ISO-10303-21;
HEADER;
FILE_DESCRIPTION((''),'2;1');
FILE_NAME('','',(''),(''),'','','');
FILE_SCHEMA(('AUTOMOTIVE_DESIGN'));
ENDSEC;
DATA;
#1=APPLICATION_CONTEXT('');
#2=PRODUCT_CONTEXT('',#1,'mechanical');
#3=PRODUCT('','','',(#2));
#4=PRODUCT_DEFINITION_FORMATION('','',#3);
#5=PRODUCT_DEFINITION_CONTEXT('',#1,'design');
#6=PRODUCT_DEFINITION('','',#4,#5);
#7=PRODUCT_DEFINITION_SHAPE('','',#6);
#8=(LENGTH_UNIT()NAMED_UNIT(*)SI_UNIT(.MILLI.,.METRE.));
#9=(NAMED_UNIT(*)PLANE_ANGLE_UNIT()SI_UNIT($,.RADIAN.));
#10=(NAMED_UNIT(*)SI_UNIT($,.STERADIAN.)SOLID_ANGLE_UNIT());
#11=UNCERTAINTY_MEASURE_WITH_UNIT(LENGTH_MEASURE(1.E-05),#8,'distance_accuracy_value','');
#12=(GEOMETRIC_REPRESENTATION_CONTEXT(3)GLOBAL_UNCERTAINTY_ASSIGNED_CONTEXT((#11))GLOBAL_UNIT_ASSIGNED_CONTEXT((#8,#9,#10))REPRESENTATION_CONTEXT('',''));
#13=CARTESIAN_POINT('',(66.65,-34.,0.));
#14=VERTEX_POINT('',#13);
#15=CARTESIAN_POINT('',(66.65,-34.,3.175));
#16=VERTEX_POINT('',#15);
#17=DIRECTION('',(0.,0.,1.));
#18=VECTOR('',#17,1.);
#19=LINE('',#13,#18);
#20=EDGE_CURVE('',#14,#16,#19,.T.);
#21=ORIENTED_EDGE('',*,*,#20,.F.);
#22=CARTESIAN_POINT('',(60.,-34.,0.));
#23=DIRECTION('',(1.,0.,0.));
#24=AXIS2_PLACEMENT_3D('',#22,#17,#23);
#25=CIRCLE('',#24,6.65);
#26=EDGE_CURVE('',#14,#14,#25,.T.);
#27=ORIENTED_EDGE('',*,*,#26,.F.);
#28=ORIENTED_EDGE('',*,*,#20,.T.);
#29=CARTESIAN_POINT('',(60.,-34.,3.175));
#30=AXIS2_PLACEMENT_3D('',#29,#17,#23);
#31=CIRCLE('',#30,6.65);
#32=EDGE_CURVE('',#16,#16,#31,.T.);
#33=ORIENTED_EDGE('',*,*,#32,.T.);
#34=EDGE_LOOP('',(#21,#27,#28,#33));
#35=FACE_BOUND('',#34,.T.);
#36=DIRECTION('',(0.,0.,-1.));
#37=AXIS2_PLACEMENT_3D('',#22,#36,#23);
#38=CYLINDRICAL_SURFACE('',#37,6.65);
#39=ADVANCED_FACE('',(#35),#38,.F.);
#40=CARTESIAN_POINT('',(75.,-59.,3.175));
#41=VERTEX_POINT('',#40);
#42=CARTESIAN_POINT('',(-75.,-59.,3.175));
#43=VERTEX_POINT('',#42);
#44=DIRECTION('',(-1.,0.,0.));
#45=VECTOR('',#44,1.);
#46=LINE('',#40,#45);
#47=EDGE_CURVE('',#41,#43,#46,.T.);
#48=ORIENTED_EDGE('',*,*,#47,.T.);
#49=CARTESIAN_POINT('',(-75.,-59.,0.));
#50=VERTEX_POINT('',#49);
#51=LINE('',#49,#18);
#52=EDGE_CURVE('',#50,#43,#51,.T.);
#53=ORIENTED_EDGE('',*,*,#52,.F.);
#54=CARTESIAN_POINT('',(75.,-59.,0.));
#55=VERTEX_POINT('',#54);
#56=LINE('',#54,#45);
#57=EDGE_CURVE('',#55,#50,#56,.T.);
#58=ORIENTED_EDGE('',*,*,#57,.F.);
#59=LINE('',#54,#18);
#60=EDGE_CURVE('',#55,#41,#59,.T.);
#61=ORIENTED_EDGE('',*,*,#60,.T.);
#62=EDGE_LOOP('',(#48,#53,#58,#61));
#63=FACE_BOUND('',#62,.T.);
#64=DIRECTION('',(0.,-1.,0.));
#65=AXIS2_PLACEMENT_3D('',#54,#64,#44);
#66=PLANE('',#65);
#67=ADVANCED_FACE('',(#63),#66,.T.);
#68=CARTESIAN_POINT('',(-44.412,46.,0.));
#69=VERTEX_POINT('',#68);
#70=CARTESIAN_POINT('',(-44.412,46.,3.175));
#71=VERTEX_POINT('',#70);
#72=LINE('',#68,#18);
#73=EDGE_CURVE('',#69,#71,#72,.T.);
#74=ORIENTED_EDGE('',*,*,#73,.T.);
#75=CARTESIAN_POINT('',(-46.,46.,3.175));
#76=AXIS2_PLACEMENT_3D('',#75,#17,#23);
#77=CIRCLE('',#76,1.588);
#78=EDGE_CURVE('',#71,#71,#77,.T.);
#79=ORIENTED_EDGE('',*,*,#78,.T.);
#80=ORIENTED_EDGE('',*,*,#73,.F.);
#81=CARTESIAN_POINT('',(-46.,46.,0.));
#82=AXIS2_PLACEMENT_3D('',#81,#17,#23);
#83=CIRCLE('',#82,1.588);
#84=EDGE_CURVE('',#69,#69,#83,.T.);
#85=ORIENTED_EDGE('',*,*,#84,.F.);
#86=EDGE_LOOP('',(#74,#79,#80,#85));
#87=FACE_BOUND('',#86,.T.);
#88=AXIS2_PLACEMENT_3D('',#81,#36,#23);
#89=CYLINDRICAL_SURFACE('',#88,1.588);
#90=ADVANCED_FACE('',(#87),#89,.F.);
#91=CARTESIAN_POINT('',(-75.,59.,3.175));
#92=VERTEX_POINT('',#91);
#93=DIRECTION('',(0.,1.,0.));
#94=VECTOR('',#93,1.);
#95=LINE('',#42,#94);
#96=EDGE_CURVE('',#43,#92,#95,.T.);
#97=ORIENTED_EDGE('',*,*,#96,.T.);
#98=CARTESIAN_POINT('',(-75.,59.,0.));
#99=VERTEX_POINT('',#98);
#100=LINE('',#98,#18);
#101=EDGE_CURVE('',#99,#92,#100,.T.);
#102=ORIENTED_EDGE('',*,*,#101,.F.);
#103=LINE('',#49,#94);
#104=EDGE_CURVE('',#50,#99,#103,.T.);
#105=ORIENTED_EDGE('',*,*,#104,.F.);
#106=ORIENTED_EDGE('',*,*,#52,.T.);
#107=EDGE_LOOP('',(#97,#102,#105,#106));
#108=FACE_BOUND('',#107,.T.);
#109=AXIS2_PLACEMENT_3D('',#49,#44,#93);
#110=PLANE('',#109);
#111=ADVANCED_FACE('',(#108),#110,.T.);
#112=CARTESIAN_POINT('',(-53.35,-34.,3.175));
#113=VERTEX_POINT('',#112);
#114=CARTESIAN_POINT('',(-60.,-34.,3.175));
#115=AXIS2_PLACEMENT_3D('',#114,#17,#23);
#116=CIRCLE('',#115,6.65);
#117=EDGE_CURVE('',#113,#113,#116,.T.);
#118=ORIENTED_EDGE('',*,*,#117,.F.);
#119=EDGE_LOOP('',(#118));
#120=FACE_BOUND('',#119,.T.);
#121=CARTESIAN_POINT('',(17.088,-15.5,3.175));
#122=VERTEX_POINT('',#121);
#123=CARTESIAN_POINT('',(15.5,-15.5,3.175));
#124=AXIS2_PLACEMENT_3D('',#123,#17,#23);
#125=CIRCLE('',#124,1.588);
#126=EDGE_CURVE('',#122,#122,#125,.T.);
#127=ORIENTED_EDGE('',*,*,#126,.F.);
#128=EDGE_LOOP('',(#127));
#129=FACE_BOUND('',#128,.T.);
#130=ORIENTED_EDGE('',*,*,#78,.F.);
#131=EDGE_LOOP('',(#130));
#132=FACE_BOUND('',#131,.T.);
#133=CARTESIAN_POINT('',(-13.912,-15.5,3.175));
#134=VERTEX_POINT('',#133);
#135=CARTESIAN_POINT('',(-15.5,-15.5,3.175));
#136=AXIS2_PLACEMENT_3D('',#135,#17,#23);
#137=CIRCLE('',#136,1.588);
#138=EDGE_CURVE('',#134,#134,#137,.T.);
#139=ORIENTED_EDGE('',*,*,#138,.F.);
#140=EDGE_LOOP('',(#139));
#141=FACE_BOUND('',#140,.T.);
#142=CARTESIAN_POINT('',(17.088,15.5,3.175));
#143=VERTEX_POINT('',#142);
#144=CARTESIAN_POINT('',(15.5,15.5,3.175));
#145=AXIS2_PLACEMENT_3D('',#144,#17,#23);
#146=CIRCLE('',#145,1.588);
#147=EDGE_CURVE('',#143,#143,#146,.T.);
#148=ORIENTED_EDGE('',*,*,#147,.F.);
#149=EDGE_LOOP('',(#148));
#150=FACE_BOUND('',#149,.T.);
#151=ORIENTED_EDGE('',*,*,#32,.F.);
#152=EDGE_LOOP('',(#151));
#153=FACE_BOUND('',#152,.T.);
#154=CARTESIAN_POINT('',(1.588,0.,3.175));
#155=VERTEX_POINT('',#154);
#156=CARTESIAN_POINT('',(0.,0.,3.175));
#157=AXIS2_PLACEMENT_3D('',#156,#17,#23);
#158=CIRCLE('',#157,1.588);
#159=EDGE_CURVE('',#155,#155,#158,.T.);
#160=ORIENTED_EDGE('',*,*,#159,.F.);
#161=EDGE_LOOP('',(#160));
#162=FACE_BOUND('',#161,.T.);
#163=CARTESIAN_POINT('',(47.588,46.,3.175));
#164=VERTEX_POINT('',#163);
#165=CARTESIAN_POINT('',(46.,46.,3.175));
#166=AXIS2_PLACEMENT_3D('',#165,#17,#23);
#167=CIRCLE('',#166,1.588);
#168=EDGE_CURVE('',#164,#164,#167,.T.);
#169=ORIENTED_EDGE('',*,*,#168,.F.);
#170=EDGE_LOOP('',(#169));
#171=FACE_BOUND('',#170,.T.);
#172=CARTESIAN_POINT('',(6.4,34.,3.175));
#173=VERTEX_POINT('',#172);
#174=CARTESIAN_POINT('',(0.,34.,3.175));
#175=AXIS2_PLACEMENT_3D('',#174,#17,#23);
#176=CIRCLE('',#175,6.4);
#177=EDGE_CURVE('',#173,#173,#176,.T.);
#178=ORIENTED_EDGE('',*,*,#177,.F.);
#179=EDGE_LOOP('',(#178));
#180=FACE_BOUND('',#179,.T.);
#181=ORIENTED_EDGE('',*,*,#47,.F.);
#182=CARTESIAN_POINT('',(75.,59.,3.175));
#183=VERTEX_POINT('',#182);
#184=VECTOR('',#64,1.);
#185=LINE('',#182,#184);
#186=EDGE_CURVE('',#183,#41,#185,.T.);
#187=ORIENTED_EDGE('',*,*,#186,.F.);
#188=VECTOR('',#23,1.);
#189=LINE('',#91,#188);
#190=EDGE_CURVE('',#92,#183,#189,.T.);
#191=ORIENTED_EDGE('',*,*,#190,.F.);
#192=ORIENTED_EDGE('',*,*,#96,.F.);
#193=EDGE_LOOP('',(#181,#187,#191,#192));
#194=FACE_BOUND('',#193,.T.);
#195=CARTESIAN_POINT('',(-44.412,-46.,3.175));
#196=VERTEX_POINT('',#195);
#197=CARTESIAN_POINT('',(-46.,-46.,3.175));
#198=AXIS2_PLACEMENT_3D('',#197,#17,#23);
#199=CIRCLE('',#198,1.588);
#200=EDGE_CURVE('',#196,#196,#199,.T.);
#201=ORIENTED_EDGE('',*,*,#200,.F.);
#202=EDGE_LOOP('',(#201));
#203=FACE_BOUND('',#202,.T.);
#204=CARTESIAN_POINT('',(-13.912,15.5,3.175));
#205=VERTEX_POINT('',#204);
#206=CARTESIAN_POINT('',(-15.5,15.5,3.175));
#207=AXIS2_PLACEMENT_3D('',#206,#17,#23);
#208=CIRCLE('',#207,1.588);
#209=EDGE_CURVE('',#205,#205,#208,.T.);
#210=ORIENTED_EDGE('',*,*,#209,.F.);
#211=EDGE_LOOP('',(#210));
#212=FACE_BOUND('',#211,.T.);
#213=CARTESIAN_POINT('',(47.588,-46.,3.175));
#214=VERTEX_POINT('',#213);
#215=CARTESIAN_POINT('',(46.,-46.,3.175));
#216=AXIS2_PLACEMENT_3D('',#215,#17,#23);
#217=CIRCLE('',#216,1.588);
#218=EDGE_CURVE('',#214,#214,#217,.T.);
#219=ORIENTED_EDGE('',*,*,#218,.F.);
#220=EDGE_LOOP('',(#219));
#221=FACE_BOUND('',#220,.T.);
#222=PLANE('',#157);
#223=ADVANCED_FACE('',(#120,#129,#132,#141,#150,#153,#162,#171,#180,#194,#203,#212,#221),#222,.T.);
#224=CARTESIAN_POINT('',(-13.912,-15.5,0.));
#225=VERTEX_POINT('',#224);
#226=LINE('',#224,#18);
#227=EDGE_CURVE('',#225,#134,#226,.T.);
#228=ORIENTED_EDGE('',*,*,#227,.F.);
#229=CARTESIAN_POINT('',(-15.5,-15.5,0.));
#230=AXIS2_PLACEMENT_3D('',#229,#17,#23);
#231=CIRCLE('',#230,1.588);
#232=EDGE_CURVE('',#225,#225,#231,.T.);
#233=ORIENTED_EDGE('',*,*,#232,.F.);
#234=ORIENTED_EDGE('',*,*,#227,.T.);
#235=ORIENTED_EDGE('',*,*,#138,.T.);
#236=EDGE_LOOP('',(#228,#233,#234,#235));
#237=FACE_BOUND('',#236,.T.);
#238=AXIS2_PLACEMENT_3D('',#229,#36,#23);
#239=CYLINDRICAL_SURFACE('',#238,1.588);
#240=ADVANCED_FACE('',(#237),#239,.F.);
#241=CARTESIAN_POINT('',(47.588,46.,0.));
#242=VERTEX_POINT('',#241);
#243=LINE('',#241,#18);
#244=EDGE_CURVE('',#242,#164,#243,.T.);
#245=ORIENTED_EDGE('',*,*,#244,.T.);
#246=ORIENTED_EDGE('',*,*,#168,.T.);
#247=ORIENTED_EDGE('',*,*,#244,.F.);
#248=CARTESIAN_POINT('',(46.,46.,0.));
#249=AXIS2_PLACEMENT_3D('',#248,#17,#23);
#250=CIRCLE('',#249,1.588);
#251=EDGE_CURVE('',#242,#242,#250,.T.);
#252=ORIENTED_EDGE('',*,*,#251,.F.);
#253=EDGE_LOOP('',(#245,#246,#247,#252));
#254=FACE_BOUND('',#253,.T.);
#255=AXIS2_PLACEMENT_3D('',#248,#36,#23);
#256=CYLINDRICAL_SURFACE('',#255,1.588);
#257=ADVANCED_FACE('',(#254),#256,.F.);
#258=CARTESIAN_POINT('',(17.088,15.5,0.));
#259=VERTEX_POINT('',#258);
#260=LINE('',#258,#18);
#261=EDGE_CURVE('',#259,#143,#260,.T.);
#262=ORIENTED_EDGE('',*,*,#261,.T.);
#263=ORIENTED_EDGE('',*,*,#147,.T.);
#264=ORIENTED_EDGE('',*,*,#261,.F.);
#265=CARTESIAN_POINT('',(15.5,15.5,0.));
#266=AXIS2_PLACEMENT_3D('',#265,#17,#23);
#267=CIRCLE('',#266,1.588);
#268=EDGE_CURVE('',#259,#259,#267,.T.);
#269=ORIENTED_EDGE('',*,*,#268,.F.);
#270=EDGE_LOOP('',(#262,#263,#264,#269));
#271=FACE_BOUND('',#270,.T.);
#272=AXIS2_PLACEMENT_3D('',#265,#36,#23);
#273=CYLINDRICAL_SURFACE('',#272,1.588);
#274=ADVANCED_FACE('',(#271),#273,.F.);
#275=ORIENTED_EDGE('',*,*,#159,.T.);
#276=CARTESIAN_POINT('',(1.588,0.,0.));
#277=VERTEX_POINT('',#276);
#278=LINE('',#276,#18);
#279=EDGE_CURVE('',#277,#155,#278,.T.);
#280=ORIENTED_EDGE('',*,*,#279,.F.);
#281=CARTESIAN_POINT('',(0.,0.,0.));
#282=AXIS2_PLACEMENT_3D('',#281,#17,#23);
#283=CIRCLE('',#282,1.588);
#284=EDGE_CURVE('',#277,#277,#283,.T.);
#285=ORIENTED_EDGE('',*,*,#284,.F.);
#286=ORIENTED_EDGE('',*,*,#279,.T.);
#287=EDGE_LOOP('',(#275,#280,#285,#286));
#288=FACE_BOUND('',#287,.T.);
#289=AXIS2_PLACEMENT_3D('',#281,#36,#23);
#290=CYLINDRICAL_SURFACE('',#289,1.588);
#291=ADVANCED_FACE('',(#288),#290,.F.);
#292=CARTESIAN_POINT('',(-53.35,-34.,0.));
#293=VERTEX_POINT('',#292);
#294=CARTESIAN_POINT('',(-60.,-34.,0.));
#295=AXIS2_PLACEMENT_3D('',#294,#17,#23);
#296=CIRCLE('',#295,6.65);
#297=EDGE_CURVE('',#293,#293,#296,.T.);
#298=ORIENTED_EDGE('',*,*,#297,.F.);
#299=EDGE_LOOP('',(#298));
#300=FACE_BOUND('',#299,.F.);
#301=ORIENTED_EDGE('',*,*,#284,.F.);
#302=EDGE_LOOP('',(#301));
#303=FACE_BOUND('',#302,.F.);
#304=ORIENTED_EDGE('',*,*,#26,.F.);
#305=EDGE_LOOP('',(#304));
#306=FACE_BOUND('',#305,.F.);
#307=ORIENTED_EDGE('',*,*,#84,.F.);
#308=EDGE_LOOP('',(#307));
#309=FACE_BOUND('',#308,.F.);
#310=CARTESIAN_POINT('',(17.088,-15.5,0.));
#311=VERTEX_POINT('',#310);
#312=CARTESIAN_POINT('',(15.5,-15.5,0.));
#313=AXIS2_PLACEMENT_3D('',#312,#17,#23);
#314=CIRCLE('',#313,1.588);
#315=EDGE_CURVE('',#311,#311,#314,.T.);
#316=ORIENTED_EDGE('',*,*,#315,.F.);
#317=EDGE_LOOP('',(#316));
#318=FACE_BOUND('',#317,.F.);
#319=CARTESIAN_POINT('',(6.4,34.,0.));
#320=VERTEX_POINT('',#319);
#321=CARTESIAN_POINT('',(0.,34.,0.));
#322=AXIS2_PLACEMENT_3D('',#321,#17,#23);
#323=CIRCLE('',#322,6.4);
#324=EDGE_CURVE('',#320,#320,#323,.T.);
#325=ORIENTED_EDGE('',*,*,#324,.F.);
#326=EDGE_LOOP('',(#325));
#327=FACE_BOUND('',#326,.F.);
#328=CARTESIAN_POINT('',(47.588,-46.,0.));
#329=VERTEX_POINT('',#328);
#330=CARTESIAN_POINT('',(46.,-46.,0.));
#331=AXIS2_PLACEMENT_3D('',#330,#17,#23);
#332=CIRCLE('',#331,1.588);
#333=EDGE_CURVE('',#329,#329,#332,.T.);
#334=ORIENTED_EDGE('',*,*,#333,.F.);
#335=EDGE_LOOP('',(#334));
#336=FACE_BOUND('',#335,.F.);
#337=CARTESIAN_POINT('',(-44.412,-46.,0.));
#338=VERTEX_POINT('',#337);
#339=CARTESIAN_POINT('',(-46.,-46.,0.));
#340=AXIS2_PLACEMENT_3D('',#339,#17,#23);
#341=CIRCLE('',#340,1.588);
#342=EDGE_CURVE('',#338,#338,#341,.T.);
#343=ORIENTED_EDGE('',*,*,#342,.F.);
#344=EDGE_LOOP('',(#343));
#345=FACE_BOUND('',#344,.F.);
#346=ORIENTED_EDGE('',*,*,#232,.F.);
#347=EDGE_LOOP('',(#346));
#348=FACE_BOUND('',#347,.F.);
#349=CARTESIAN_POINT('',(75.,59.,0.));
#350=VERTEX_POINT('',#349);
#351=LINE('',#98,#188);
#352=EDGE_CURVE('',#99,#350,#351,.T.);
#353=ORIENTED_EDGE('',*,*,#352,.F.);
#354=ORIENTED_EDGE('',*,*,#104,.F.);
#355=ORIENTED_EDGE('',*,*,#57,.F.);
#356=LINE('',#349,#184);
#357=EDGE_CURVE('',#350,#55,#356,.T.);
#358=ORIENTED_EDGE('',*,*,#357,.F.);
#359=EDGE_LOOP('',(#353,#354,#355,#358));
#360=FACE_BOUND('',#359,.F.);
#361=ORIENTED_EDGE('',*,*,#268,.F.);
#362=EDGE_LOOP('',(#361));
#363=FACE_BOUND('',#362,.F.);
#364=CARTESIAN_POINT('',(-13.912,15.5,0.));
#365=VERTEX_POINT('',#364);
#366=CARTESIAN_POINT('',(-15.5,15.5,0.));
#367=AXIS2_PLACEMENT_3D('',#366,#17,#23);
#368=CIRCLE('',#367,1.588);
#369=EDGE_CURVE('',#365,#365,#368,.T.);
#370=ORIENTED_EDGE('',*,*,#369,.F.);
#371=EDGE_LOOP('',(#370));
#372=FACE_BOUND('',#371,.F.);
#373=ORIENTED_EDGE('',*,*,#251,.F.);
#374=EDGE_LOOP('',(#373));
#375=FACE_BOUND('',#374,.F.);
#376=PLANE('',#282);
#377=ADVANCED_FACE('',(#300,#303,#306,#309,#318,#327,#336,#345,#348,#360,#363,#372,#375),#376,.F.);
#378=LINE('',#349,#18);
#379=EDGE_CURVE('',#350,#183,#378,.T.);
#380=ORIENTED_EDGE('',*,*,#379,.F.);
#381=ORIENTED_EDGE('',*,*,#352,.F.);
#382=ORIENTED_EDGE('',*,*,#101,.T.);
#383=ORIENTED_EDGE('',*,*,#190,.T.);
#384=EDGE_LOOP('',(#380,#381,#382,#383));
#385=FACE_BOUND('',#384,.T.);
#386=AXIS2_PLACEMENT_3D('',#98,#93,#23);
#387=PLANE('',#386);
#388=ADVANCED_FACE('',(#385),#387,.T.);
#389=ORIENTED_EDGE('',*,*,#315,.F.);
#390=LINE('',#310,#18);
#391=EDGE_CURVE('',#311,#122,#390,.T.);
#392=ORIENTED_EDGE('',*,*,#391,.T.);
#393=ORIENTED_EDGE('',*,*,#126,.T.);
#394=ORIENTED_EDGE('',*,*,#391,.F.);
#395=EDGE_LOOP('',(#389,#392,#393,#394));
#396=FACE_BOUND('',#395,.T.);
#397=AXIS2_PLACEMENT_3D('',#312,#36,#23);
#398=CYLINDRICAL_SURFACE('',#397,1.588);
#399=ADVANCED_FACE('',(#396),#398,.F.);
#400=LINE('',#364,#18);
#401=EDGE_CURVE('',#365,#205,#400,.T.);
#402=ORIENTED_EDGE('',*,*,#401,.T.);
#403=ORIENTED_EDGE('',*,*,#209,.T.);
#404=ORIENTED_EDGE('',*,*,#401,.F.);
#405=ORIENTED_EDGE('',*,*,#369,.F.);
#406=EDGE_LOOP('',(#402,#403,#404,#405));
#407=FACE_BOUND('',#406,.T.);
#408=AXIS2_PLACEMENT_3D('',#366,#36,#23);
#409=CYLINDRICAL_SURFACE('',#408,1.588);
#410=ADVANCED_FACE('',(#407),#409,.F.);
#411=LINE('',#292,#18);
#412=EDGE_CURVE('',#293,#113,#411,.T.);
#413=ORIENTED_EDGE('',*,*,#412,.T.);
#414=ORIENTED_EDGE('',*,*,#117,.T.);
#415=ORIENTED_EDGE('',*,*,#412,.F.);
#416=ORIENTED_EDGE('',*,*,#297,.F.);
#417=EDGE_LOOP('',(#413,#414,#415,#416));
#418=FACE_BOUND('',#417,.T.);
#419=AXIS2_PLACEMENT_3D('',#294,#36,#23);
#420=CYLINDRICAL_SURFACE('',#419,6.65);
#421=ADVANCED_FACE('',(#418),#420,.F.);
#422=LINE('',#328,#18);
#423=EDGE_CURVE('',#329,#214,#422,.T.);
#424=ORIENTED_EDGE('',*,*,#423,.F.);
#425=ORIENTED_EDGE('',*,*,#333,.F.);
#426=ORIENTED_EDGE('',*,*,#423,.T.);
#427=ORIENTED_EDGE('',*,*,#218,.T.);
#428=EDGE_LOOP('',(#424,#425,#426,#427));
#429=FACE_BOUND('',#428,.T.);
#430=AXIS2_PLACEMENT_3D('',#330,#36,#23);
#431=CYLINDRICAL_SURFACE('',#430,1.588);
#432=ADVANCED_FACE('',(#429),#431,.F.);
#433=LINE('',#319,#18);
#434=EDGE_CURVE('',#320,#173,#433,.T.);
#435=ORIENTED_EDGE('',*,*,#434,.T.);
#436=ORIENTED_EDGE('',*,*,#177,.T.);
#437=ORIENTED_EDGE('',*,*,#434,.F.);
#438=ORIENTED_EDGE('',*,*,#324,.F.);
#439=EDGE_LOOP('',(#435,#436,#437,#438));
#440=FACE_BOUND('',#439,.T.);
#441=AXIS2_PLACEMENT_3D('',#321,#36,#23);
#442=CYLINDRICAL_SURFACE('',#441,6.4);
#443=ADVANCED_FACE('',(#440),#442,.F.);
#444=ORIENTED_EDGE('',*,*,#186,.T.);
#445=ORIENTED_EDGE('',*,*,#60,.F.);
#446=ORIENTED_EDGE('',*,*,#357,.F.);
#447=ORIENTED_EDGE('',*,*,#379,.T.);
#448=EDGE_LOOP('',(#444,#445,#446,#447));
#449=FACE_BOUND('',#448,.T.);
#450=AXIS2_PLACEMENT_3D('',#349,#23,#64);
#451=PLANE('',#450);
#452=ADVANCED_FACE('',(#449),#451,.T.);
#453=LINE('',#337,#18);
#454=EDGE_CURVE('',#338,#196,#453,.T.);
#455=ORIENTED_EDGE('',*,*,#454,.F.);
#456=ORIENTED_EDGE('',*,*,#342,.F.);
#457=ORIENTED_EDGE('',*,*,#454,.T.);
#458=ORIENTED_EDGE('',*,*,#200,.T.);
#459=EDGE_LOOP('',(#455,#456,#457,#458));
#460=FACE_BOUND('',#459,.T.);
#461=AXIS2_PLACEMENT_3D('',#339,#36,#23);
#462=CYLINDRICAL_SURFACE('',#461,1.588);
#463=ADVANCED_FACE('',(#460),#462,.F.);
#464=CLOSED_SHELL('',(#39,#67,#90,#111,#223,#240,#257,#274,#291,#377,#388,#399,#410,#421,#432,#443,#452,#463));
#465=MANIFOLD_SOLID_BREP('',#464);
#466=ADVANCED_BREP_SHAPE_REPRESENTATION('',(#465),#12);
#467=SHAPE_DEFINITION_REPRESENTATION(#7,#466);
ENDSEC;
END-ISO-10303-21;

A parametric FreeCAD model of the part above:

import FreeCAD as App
import Part
import Sketcher


def add_polygon(sketch, points):
    """Adds a closed chain of lines whose ends are joined by coincident constraints."""
    first, n = sketch.GeometryCount, len(points)
    for a, b in zip(points, points[1:] + points[:1]):
        sketch.addGeometry(Part.LineSegment(App.Vector(*a, 0), App.Vector(*b, 0)), False)
    for i in range(n):
        sketch.addConstraint(Sketcher.Constraint("Coincident", first + i, 2, first + (i + 1) % n, 1))

doc = App.newDocument("Part")
params = doc.addObject("Spreadsheet::Sheet", "Params")
for row, (alias, value) in enumerate([
    ("sketch1_diameter", "13.3 mm"),
    ("sketch1_diameter2", "12.8 mm"),
    ("sketch1_width", "150 mm"),
    ("sketch1_height", "118 mm"),
    ("pad1_length", "3.175 mm"),
], start=1):
    params.set(f"A{row}", alias)
    params.set(f"B{row}", "=" + value)
    params.setAlias(f"B{row}", alias)

body = doc.addObject("PartDesign::Body", "Body")

# Sketch on XY plane
sketch1 = doc.addObject("Sketcher::SketchObject", "Sketch")
body.addObject(sketch1)
sketch1.AttachmentSupport = (doc.XY_Plane, [""])
sketch1.MapMode = "FlatFace"
add_polygon(sketch1, [(75, 59), (-75, 59), (-75, -59), (75, -59)])  # lines 0-3
sketch1.addGeometry(Part.Circle(App.Vector(-46, -46, 0), App.Vector(0, 0, 1), 1.6), False)  # 4
sketch1.addGeometry(Part.Circle(App.Vector(-60, -34, 0), App.Vector(0, 0, 1), 6.7), False)  # 5
sketch1.addGeometry(Part.Circle(App.Vector(-15.5, -15.5, 0), App.Vector(0, 0, 1), 1.6), False)  # 6
sketch1.addGeometry(Part.Circle(App.Vector(46, -46, 0), App.Vector(0, 0, 1), 1.6), False)  # 7
sketch1.addGeometry(Part.Circle(App.Vector(60, -34, 0), App.Vector(0, 0, 1), 6.7), False)  # 8
sketch1.addGeometry(Part.Circle(App.Vector(15.5, -15.5, 0), App.Vector(0, 0, 1), 1.6), False)  # 9
sketch1.addGeometry(Part.Circle(App.Vector(-15.5, 15.5, 0), App.Vector(0, 0, 1), 1.6), False)  # 10
sketch1.addGeometry(Part.Circle(App.Vector(-46, 46, 0), App.Vector(0, 0, 1), 1.6), False)  # 11
sketch1.addGeometry(Part.Circle(App.Vector(0, 0, 0), App.Vector(0, 0, 1), 1.6), False)  # 12
sketch1.addGeometry(Part.Circle(App.Vector(15.5, 15.5, 0), App.Vector(0, 0, 1), 1.6), False)  # 13
sketch1.addGeometry(Part.Circle(App.Vector(0, 34, 0), App.Vector(0, 0, 1), 6.4), False)  # 14
sketch1.addGeometry(Part.Circle(App.Vector(46, 46, 0), App.Vector(0, 0, 1), 1.6), False)  # 15
sketch1.addConstraint(Sketcher.Constraint("Horizontal", 0))
sketch1.addConstraint(Sketcher.Constraint("Vertical", 1))
sketch1.addConstraint(Sketcher.Constraint("Horizontal", 2))
sketch1.addConstraint(Sketcher.Constraint("Vertical", 3))
sketch1.addConstraint(Sketcher.Constraint("Coincident", 12, 3, -1, 1))
sketch1.addConstraint(Sketcher.Constraint("Equal", 4, 6))
sketch1.addConstraint(Sketcher.Constraint("Equal", 6, 7))
sketch1.addConstraint(Sketcher.Constraint("Equal", 5, 8))
sketch1.addConstraint(Sketcher.Constraint("Equal", 7, 9))
sketch1.addConstraint(Sketcher.Constraint("Equal", 9, 10))
sketch1.addConstraint(Sketcher.Constraint("Equal", 10, 11))
sketch1.addConstraint(Sketcher.Constraint("Equal", 11, 12))
sketch1.addConstraint(Sketcher.Constraint("Equal", 12, 13))
sketch1.addConstraint(Sketcher.Constraint("Equal", 13, 15))
sketch1.addConstraint(Sketcher.Constraint("Symmetric", 9, 3, 10, 3, -1, 1))
sketch1.addConstraint(Sketcher.Constraint("Symmetric", 7, 3, 11, 3, -1, 1))
sketch1.addConstraint(Sketcher.Constraint("Symmetric", 6, 3, 13, 3, -1, 1))
sketch1.addConstraint(Sketcher.Constraint("Symmetric", 4, 3, 15, 3, -1, 1))
sketch1.addConstraint(Sketcher.Constraint("Symmetric", 0, 2, 2, 2, -1, 1))
sketch1.addConstraint(Sketcher.Constraint("Symmetric", 4, 3, 7, 3, -2))
sketch1.addConstraint(Sketcher.Constraint("Symmetric", 5, 3, 8, 3, -2))
sketch1.addConstraint(Sketcher.Constraint("Symmetric", 6, 3, 9, 3, -2))
sketch1.addConstraint(Sketcher.Constraint("PointOnObject", 14, 3, -2))
sketch1.addConstraint(Sketcher.Constraint("Diameter", 5, 13.3))
sketch1.addConstraint(Sketcher.Constraint("Diameter", 14, 12.8))
sketch1.addConstraint(Sketcher.Constraint("DistanceX", 0, 2, 0, 1, 150.0))
sketch1.addConstraint(Sketcher.Constraint("DistanceY", 1, 2, 1, 1, 118.0))
sketch1.addConstraint(Sketcher.Constraint("Diameter", 4, 3.176))
sketch1.addConstraint(Sketcher.Constraint("DistanceX", 4, 3, -1, 1, 46.0))
sketch1.addConstraint(Sketcher.Constraint("DistanceY", 4, 3, -1, 1, 46.0))
sketch1.addConstraint(Sketcher.Constraint("DistanceX", 5, 3, 8, 3, 120.0))
sketch1.addConstraint(Sketcher.Constraint("DistanceX", 6, 3, 9, 3, 31.0))
sketch1.addConstraint(Sketcher.Constraint("DistanceY", 6, 3, 10, 3, 31.0))
sketch1.addConstraint(Sketcher.Constraint("DistanceY", 14, 3, 0, 2, 25.0))
sketch1.addConstraint(Sketcher.Constraint("DistanceY", 1, 2, 5, 3, 25.0))
sketch1.setExpression("Constraints[27]", "Params.sketch1_diameter")
sketch1.setExpression("Constraints[28]", "Params.sketch1_diameter2")
sketch1.setExpression("Constraints[29]", "Params.sketch1_width")
sketch1.setExpression("Constraints[30]", "Params.sketch1_height")
pad1 = doc.addObject("PartDesign::Pad", "Pad")
body.addObject(pad1)
pad1.Profile = sketch1
pad1.setExpression("Length", "Params.pad1_length")

doc.recompute()
